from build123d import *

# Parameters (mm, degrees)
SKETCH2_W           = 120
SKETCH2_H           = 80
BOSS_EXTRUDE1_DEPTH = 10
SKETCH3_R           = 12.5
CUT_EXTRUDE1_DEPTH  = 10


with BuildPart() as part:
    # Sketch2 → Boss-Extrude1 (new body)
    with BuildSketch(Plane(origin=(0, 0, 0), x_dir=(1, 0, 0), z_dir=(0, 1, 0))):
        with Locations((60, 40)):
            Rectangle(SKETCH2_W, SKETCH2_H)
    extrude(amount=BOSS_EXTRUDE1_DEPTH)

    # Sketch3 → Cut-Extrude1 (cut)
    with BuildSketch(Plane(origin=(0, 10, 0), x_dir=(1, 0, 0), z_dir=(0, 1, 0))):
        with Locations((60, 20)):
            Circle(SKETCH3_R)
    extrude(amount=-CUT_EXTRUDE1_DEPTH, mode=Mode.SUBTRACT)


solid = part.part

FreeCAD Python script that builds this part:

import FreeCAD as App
import Part
import Sketcher
from FreeCAD import Vector


def add_polygon(sketch, points):
    """Adds a closed chain of lines whose ends are joined by coincident constraints."""
    first, n = sketch.GeometryCount, len(points)
    for a, b in zip(points, points[1:] + points[:1]):
        sketch.addGeometry(Part.LineSegment(App.Vector(*a, 0), App.Vector(*b, 0)), False)
    for i in range(n):
        sketch.addConstraint(Sketcher.Constraint("Coincident", first + i, 2, first + (i + 1) % n, 1))

doc = App.newDocument("Part")
body = doc.addObject("PartDesign::Body", "Body")

sketch1 = body.newObject("Sketcher::SketchObject", "Sketch")
sketch1.AttachmentSupport = (doc.getObject("XZ_Plane"), [""])
sketch1.MapMode = "FlatFace"
add_polygon(sketch1, [(0, -80), (0, 0), (120, 0), (120, -80)])
sketch1.addConstraint(Sketcher.Constraint("Vertical", 0))
sketch1.addConstraint(Sketcher.Constraint("Horizontal", 1))
sketch1.addConstraint(Sketcher.Constraint("Vertical", 2))
sketch1.addConstraint(Sketcher.Constraint("Horizontal", 3))
sketch1.addConstraint(Sketcher.Constraint("Coincident", 0, 2, -1, 1))
sketch1.addConstraint(Sketcher.Constraint("DistanceX", 1, 1, 1, 2, 120.0))
sketch1.addConstraint(Sketcher.Constraint("DistanceY", 0, 1, 0, 2, 80.0))
pad1 = body.newObject("PartDesign::Pad", "Pad")
pad1.Profile = sketch1
pad1.Length = 10
pad1.Reversed = True

sketch2 = body.newObject("Sketcher::SketchObject", "Sketch001")
sketch2.AttachmentSupport = (doc.getObject("XZ_Plane"), [""])
sketch2.MapMode = "FlatFace"
sketch2.AttachmentOffset = App.Placement(Vector(0, 0, -10), App.Rotation())
sketch2.addGeometry(Part.Circle(Vector(60, -20, 0), Vector(0, 0, 1), 12), False)
sketch2.addConstraint(Sketcher.Constraint("Diameter", 0, 25.0))
sketch2.addConstraint(Sketcher.Constraint("DistanceX", -1, 1, 0, 3, 60.0))
sketch2.addConstraint(Sketcher.Constraint("DistanceY", 0, 3, -1, 1, 20.0))
pocket1 = body.newObject("PartDesign::Pocket", "Pocket")
pocket1.Profile = sketch2
pocket1.Length = 10
pocket1.Reversed = True

doc.recompute()
